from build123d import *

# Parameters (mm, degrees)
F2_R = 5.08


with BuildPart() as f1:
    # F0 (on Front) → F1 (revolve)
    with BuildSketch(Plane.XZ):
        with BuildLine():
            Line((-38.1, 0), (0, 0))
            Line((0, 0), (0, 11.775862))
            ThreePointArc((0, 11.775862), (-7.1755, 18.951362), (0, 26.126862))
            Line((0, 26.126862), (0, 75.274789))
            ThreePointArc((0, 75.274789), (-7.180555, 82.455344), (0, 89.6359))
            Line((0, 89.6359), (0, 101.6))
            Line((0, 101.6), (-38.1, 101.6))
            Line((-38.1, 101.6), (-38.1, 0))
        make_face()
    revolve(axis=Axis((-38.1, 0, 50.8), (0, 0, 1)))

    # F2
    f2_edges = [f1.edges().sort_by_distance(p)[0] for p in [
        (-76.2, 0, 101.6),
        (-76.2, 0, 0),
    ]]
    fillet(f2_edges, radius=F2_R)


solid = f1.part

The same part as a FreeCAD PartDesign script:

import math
import FreeCAD as App
import Part
import Sketcher
Q = App.Units.Quantity


def edges_at(feature, points):
    """Names of the edges that pass closest to the given points."""
    edges = feature.Shape.Edges
    near = lambda p: min(range(len(edges)), key=lambda i: edges[i].distToShape(Part.Vertex(*p))[0])
    return sorted({f"Edge{near(p) + 1}" for p in points})

doc = App.newDocument("Part")
body = doc.addObject("PartDesign::Body", "Body")

# Sketch on XZ plane
sketch1 = body.newObject("Sketcher::SketchObject", "Sketch")
sketch1.AttachmentSupport = (doc.getObject("XZ_Plane"), [""])
sketch1.MapMode = "FlatFace"
sketch1.addGeometry([
    Part.LineSegment(App.Vector(-38.1, 0, 0), App.Vector(0, 0, 0)),  # 0
    Part.LineSegment(App.Vector(0, 0, 0), App.Vector(0, 11.775862, 0)),  # 1
    Part.ArcOfCircle(Part.Circle(App.Vector(0, 18.951362, 0), App.Vector(0, 0, 1), 7.1755), math.radians(90), math.radians(270)),  # 2
    Part.LineSegment(App.Vector(0, 26.126862, 0), App.Vector(0, 75.274789, 0)),  # 3
    Part.ArcOfCircle(Part.Circle(App.Vector(0, 82.455344, 0), App.Vector(0, 0, 1), 7.180555), math.radians(90.000004), math.radians(269.999996)),  # 4
    Part.LineSegment(App.Vector(0, 89.6359, 0), App.Vector(0, 101.6, 0)),  # 5
    Part.LineSegment(App.Vector(0, 101.6, 0), App.Vector(-38.1, 101.6, 0)),  # 6
    Part.LineSegment(App.Vector(-38.1, 101.6, 0), App.Vector(-38.1, 0, 0)),  # 7
], False)
sketch1.addGeometry(Part.LineSegment(App.Vector(-38.1, 0, 0), App.Vector(-38.1, 101.6, 0)), True)  # axis
sketch1.addConstraint([
    Sketcher.Constraint("Coincident", 0, 2, 1, 1),
    Sketcher.Constraint("Coincident", 1, 2, 2, 2),
    Sketcher.Constraint("Coincident", 2, 1, 3, 1),
    Sketcher.Constraint("Coincident", 3, 2, 4, 2),
    Sketcher.Constraint("Coincident", 4, 1, 5, 1),
    Sketcher.Constraint("Coincident", 5, 2, 6, 1),
    Sketcher.Constraint("Coincident", 6, 2, 7, 1),
    Sketcher.Constraint("Coincident", 7, 2, 0, 1),
    Sketcher.Constraint("Horizontal", 0),
    Sketcher.Constraint("Vertical", 1),
    Sketcher.Constraint("Vertical", 3),
    Sketcher.Constraint("Vertical", 5),
    Sketcher.Constraint("Horizontal", 6),
    Sketcher.Constraint("Vertical", 7),
    Sketcher.Constraint("Vertical", 8),
    Sketcher.Constraint("Coincident", 0, 2, -1, 1),
    Sketcher.Constraint("Coincident", 8, 1, 7, 2),
    Sketcher.Constraint("PointOnObject", 2, 3, -2),
    Sketcher.Constraint("PointOnObject", 4, 3, -2),
    Sketcher.Constraint("PointOnObject", 2, 1, -2),
    Sketcher.Constraint("PointOnObject", 4, 1, -2),
    Sketcher.Constraint("Horizontal", 5, 2, 8, 2),
    Sketcher.Constraint("DistanceY", 7, 2, 7, 1, Q("4 in")),
    Sketcher.Constraint("DistanceX", 0, 1, 0, 2, Q("1.5 in")),
    Sketcher.Constraint("Radius", 2, Q("0.2825 in")),
    Sketcher.Constraint("DistanceY", 5, 1, 5, 2, 11.9641),
    Sketcher.Constraint("Radius", 4, 7.180555),
    Sketcher.Constraint("DistanceY", 1, 1, 1, 2, 11.775862),
])
revolution = body.newObject("PartDesign::Revolution", "Revolution")
revolution.Profile = sketch1
revolution.ReferenceAxis = (sketch1, ["Axis0"])
revolution.Angle = 360
doc.recompute()

fillet = body.newObject("PartDesign::Fillet", "Fillet")
fillet.Base = (revolution, edges_at(revolution, [(-76.2, 0, 101.6), (-76.2, 0, 0)]))
fillet.Radius = Q("0.2 in")

doc.recompute()
